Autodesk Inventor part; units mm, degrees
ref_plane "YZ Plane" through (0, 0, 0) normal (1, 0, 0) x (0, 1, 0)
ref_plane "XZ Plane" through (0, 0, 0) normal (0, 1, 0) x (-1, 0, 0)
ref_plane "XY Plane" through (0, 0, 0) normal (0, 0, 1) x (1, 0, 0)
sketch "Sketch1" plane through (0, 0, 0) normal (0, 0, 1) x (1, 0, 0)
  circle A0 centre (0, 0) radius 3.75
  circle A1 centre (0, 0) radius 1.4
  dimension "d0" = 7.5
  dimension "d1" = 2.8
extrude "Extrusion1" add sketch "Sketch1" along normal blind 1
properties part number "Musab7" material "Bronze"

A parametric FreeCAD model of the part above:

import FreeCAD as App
import Part
import Sketcher
Q = App.Units.Quantity

doc = App.newDocument("Part")
params = doc.addObject("Spreadsheet::Sheet", "Params")
for row, (alias, value) in enumerate([
    ("sketch1_diameter", "7.5 mm"),
    ("sketch1_diameter2", "2.8 mm"),
    ("pad1_length", "1 mm"),
], start=1):
    params.set(f"A{row}", alias)
    params.set(f"B{row}", "=" + value)
    params.setAlias(f"B{row}", alias)

body = doc.addObject("PartDesign::Body", "Body")

sketch1 = body.newObject("Sketcher::SketchObject", "Sketch")
sketch1.AttachmentSupport = (doc.getObject("XY_Plane"), [""])
sketch1.MapMode = "FlatFace"
sketch1.addGeometry(Part.Circle(App.Vector(0, 0, 0), App.Vector(0, 0, 1), 3.8), False)
sketch1.addGeometry(Part.Circle(App.Vector(0, 0, 0), App.Vector(0, 0, 1), 1.4), False)
sketch1.addConstraint(Sketcher.Constraint("Coincident", 0, 3, -1, 1))
sketch1.addConstraint(Sketcher.Constraint("Coincident", 1, 3, -1, 1))
sketch1.addConstraint(Sketcher.Constraint("Diameter", 0, Q("7.5 mm")))
sketch1.addConstraint(Sketcher.Constraint("Diameter", 1, Q("2.8 mm")))
sketch1.setExpression("Constraints[2]", "Params.sketch1_diameter")
sketch1.setExpression("Constraints[3]", "Params.sketch1_diameter2")
pad1 = body.newObject("PartDesign::Pad", "Pad")
pad1.Profile = sketch1
pad1.setExpression("Length", "Params.pad1_length")

doc.recompute()
